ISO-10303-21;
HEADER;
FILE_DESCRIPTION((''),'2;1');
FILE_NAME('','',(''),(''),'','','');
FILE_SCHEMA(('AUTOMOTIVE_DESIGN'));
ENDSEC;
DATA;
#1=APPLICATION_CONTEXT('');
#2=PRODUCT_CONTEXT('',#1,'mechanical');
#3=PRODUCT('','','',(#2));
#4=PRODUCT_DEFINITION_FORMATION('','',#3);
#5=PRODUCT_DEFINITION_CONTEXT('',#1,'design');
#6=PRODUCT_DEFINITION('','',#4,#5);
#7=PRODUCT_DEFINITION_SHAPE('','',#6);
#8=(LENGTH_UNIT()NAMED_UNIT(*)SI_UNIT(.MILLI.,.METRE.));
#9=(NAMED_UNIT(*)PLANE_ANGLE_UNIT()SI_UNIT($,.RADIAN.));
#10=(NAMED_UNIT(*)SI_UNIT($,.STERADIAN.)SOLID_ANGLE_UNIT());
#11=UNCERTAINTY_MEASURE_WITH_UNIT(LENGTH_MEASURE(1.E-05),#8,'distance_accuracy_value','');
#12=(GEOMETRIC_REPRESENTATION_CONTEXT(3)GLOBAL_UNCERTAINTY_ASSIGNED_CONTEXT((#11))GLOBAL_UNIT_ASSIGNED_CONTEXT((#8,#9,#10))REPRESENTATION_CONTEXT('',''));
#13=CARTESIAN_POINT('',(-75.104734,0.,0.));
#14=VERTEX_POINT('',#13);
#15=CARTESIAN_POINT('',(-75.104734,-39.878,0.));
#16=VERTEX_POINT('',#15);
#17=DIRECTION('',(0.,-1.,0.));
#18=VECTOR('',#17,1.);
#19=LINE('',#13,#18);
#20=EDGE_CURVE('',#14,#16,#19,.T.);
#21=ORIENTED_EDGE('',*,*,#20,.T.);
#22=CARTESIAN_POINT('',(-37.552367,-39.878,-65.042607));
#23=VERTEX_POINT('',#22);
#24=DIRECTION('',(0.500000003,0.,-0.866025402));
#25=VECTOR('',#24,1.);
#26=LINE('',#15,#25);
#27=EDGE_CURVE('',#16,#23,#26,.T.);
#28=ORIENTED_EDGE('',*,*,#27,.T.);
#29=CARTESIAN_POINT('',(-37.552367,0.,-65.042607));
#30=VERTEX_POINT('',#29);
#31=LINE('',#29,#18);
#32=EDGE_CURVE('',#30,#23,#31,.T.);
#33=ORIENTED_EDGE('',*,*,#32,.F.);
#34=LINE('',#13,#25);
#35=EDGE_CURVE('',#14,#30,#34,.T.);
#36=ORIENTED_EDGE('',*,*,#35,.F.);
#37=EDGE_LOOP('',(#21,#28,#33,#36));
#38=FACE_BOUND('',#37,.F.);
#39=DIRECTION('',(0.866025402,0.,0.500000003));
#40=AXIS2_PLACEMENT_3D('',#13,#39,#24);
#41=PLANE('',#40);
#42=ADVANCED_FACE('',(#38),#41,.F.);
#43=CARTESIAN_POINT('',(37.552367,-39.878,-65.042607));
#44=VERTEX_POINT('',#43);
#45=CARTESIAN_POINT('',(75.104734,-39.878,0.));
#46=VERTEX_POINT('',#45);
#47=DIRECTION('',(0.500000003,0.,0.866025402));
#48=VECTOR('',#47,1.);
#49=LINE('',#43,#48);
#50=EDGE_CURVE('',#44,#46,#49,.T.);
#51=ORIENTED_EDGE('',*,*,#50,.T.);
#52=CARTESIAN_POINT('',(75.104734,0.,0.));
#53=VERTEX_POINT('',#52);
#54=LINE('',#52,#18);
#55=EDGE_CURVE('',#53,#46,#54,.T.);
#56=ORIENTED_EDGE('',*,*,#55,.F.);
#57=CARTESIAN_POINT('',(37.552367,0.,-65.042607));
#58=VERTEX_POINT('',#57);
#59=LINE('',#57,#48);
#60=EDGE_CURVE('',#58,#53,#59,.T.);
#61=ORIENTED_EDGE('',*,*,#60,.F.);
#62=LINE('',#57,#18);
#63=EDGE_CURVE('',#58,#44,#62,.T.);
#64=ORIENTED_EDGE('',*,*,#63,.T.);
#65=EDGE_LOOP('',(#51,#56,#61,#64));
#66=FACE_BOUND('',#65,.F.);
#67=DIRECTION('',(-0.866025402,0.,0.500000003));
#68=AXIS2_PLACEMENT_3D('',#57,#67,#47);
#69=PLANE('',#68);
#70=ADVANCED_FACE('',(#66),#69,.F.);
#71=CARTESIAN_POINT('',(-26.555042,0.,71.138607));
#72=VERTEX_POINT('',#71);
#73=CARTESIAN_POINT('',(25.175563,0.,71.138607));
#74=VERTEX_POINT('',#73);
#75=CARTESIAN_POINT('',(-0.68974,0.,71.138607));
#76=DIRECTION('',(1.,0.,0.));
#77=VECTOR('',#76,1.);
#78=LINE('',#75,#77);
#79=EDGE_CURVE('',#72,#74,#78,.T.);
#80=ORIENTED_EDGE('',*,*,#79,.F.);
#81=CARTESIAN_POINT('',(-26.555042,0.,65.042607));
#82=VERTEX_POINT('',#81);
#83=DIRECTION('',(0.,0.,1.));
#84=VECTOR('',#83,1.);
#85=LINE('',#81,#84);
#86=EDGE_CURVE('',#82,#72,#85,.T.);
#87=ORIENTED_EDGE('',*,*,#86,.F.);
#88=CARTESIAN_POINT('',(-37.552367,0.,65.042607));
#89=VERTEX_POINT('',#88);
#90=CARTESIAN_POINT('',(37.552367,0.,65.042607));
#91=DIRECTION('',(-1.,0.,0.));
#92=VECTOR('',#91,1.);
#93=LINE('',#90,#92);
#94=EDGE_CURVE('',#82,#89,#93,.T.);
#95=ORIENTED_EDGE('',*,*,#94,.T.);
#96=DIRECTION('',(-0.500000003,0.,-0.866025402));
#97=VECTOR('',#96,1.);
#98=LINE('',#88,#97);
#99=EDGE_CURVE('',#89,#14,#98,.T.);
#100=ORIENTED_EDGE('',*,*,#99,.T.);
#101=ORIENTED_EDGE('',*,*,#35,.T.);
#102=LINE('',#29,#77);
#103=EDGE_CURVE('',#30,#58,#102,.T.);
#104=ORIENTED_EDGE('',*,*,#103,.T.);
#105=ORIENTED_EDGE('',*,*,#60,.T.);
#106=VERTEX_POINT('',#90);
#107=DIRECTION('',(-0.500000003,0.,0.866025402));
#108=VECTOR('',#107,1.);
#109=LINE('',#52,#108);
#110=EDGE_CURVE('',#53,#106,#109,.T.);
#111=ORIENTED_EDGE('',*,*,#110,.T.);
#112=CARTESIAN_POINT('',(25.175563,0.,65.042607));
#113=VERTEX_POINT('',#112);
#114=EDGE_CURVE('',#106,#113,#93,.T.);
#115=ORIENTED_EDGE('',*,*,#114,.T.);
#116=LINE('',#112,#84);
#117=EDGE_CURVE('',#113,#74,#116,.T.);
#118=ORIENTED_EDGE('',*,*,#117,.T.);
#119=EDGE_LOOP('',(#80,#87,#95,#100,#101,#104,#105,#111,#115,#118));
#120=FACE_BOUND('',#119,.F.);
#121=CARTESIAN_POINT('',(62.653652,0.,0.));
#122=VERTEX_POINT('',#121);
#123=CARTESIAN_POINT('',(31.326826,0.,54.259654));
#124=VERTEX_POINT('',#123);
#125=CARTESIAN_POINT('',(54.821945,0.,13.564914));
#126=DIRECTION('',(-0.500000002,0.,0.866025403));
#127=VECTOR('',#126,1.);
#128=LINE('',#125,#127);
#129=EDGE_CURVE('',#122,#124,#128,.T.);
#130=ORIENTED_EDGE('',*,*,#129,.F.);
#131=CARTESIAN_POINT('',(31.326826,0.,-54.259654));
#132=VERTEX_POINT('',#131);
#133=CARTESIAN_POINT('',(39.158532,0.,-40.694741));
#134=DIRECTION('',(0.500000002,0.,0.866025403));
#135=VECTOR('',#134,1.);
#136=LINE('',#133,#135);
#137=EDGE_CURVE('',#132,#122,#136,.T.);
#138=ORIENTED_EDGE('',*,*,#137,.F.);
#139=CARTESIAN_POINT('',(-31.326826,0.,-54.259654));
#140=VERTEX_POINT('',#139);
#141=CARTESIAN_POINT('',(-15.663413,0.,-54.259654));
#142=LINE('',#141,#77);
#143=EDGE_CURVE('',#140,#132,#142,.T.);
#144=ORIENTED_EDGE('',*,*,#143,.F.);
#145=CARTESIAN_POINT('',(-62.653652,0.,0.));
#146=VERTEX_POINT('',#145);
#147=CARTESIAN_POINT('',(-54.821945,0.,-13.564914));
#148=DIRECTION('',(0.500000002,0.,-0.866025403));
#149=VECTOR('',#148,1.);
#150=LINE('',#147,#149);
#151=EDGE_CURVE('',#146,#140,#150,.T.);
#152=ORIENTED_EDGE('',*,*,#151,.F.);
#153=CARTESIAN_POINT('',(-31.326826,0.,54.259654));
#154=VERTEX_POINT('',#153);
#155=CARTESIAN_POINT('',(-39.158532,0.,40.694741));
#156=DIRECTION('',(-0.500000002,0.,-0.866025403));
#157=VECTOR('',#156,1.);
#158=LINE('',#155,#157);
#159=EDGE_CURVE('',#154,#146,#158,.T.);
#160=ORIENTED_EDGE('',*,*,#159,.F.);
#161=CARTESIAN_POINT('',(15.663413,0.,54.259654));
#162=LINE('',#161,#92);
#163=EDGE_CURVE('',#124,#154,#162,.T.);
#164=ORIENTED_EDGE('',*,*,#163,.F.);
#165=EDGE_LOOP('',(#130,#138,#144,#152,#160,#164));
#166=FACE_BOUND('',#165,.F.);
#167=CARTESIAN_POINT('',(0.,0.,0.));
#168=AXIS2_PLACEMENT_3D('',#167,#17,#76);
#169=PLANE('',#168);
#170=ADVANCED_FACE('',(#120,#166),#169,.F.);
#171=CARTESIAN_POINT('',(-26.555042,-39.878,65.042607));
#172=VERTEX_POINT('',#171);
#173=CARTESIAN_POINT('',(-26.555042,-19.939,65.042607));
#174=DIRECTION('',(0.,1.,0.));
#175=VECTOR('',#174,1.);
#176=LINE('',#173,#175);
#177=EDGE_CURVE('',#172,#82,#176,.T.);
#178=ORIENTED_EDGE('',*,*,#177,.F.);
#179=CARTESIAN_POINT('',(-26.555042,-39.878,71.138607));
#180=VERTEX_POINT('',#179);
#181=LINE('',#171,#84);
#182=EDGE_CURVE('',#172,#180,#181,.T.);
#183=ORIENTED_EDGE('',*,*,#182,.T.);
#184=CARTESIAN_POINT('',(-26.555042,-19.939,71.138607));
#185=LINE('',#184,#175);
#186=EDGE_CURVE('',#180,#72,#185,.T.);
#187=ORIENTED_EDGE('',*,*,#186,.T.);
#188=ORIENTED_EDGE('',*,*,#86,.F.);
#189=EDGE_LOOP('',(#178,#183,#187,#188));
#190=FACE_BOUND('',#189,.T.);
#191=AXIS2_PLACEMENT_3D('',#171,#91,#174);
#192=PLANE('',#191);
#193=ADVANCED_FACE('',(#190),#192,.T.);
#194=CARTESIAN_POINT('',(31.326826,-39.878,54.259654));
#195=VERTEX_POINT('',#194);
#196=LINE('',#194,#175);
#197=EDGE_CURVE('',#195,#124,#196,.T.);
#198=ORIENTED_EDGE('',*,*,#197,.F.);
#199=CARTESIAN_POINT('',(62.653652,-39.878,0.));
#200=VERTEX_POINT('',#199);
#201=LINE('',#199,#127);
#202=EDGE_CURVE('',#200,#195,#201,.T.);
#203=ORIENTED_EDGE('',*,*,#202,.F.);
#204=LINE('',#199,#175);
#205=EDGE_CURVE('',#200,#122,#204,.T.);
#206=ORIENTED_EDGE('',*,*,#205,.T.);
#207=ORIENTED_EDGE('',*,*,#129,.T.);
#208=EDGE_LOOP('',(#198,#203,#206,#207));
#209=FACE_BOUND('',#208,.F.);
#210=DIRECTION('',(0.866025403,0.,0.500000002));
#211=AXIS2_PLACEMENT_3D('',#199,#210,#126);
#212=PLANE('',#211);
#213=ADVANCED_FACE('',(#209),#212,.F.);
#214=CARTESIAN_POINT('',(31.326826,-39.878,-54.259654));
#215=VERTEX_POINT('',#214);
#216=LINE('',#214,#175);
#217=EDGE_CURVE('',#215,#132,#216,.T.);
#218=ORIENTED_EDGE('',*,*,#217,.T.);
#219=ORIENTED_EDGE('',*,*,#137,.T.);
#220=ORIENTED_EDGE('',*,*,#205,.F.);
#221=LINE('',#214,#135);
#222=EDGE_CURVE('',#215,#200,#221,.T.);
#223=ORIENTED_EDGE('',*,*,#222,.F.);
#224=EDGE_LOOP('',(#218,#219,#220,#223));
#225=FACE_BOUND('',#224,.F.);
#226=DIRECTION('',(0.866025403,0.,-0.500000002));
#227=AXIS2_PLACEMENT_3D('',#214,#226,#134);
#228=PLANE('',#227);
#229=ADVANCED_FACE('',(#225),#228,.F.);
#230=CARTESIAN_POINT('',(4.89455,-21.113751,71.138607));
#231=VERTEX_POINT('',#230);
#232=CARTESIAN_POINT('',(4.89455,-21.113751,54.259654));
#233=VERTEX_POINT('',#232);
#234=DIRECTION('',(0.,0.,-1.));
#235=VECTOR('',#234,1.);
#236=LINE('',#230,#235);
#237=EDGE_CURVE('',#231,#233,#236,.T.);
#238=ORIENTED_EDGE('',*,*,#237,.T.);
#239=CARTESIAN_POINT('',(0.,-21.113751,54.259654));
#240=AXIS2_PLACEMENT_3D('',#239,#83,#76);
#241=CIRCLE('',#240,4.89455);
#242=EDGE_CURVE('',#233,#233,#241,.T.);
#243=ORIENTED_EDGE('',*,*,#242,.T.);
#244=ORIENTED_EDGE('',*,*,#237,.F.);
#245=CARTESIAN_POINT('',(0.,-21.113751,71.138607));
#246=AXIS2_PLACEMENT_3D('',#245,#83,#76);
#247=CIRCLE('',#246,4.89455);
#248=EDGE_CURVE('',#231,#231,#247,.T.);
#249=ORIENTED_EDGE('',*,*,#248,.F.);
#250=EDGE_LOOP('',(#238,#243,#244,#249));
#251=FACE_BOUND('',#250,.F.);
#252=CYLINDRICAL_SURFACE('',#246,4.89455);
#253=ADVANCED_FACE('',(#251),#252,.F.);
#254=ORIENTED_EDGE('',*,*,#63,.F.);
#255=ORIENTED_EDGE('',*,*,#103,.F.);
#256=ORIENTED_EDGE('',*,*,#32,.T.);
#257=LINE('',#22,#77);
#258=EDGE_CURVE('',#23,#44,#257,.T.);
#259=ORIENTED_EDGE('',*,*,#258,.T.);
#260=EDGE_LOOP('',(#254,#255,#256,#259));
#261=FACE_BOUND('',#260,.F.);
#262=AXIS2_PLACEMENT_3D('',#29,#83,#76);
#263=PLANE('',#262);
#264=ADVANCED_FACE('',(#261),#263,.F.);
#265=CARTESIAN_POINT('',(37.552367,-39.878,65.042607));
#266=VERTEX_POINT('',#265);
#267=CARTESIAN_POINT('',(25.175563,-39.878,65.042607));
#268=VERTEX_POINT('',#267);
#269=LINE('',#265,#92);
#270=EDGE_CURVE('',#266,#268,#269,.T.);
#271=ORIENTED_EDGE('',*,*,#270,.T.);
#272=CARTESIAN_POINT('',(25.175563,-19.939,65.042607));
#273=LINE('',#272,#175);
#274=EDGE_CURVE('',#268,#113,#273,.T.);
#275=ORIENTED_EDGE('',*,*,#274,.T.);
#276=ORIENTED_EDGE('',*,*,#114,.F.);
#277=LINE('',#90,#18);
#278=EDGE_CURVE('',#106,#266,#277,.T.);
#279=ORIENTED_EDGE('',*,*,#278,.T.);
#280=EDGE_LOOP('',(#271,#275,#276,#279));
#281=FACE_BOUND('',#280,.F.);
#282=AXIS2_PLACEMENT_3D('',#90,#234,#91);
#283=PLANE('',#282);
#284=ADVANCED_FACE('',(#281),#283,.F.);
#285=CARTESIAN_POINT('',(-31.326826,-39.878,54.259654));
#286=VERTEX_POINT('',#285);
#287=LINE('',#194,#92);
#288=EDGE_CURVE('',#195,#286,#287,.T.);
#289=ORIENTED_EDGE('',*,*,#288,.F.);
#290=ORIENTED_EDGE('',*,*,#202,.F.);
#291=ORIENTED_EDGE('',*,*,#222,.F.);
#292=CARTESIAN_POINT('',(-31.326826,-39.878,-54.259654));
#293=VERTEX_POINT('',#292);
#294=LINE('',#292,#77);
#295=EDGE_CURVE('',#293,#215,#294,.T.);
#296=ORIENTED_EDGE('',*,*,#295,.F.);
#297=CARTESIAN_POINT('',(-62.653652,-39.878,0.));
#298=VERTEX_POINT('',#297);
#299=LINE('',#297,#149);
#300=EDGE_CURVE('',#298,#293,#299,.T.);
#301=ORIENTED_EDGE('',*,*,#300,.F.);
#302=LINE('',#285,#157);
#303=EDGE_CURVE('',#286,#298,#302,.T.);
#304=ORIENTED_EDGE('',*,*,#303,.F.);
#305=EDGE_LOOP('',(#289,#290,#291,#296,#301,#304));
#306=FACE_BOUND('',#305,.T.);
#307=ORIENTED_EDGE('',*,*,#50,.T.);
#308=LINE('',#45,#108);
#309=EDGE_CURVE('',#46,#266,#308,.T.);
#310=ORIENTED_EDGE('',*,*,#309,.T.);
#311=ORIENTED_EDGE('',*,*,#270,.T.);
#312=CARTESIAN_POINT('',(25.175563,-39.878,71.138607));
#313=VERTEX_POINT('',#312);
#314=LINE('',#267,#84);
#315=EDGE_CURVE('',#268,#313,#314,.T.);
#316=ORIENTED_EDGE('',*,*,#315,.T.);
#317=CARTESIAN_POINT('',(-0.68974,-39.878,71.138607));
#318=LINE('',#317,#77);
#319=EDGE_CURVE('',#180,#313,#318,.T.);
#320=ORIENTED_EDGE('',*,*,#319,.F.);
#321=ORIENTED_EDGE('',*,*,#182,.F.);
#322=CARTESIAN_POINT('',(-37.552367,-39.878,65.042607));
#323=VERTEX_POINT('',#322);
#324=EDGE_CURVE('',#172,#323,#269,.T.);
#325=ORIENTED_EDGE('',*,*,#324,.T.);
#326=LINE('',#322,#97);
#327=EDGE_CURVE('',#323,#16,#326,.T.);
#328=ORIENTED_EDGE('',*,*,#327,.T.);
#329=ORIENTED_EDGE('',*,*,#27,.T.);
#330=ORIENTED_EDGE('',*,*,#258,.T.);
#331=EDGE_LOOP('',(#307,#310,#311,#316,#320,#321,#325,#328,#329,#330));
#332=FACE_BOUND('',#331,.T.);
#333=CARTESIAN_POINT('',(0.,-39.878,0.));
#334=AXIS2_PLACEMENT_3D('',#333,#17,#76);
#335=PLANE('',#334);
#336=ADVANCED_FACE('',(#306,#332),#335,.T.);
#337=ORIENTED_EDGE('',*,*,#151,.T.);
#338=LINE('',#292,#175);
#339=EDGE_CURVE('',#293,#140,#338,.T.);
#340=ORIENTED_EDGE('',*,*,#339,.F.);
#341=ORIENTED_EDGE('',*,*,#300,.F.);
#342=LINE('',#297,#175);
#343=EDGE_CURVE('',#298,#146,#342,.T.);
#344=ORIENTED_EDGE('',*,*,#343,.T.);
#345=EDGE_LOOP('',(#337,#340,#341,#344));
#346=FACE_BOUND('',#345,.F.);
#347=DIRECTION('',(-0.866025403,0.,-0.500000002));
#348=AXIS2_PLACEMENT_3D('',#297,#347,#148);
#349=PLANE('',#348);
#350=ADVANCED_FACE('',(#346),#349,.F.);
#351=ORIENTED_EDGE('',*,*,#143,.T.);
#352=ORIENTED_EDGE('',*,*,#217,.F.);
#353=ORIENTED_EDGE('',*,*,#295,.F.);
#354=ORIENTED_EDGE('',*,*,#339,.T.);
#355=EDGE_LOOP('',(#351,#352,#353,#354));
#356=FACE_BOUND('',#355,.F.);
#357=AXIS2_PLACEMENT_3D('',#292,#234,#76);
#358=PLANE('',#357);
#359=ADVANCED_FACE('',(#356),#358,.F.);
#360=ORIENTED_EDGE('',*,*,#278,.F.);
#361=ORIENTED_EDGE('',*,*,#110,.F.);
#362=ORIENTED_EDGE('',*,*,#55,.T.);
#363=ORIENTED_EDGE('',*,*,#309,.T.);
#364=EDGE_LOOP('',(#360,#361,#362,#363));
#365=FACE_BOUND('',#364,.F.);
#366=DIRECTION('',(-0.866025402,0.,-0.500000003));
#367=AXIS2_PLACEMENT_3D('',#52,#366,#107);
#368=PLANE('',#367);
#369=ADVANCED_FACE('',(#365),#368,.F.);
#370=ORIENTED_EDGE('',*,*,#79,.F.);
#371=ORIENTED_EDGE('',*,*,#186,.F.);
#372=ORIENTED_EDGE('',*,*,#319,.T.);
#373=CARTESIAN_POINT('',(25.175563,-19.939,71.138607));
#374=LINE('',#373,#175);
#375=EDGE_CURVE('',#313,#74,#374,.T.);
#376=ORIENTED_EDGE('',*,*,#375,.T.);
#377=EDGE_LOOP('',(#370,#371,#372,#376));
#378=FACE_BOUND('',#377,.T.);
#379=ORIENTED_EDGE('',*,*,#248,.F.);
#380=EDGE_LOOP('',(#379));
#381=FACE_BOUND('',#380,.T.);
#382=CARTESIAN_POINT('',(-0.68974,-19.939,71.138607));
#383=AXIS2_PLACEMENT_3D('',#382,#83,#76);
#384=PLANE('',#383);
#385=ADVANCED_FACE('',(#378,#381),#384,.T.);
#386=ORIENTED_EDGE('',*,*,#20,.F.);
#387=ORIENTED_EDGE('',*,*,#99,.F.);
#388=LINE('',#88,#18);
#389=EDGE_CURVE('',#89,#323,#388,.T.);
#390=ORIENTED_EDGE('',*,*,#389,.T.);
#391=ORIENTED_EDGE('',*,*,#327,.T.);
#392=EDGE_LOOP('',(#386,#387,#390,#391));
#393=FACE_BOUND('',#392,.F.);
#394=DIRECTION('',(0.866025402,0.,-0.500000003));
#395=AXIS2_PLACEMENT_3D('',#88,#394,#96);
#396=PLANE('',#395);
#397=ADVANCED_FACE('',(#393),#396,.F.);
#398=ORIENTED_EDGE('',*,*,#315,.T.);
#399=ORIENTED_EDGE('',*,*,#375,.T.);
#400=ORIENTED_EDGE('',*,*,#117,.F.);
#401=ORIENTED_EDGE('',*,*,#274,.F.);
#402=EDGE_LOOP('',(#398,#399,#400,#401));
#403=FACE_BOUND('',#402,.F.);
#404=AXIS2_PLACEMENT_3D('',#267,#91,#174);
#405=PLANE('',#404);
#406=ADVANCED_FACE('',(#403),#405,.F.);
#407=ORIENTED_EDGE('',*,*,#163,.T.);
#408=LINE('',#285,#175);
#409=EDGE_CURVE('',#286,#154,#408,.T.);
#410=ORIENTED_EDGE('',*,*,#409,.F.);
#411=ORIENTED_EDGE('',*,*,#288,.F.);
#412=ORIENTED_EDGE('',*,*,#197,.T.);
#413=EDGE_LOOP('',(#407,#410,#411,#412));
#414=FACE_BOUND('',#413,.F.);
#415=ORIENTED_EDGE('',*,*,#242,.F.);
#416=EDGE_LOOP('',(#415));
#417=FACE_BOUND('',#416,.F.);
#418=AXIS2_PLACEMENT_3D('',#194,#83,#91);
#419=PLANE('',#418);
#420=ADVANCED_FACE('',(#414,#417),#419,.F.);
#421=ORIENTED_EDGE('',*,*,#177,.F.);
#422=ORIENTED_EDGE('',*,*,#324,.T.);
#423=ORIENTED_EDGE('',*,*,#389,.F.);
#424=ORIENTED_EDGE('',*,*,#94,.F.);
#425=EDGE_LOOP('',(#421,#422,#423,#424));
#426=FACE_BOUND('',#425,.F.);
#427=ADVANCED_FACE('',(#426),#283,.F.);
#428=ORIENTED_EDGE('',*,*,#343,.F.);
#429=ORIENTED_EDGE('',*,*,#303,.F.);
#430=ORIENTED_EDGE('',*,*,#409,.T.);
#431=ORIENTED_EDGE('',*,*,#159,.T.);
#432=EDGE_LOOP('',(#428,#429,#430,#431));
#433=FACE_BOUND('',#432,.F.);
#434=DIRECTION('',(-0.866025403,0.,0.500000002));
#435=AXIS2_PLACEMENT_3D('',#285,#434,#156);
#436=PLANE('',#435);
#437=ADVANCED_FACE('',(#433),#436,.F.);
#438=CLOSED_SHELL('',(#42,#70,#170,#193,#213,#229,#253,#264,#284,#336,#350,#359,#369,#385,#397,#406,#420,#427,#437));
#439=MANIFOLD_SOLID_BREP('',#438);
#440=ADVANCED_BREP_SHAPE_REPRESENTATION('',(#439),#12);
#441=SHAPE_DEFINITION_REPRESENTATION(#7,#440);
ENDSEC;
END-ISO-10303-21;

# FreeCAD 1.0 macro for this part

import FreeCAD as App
import Part
import Sketcher

V = App.Vector
Q = App.Units.Quantity


def add_polygon(sketch, points):
    """Adds a closed chain of lines whose ends are joined by coincident constraints."""
    first, n = sketch.GeometryCount, len(points)
    for a, b in zip(points, points[1:] + points[:1]):
        sketch.addGeometry(Part.LineSegment(App.Vector(*a, 0), App.Vector(*b, 0)), False)
    for i in range(n):
        sketch.addConstraint(Sketcher.Constraint("Coincident", first + i, 2, first + (i + 1) % n, 1))

doc = App.newDocument("Part")
body = doc.addObject("PartDesign::Body", "Body")

sketch1 = body.newObject("Sketcher::SketchObject", "Sketch")
sketch1.AttachmentSupport = (doc.getObject("XZ_Plane"), [""])
sketch1.MapMode = "FlatFace"
add_polygon(sketch1, [(38, 65), (-38, 65), (-75, 0), (-38, -65), (38, -65), (75, 0)])
sketch1.addConstraint([
    Sketcher.Constraint("Horizontal", 0),
    Sketcher.Constraint("Horizontal", 3),
    Sketcher.Constraint("Symmetric", 0, 2, 3, 2, -1, 1),
    Sketcher.Constraint("Symmetric", 1, 2, 4, 2, -1, 1),
    Sketcher.Constraint("PointOnObject", 1, 2, -1),
    Sketcher.Constraint("Parallel", 2, 5),
    Sketcher.Constraint("Vertical", 0, 2, 2, 2),
    Sketcher.Constraint("Angle", 1, Q("-120 deg")),
    Sketcher.Constraint("DistanceX", 1, 2, 3, 2, 112.657101),
    Sketcher.Constraint("DistanceX", 0, 2, 0, 1, 75.104734),
])
pad1 = body.newObject("PartDesign::Pad", "Pad")
pad1.Profile = sketch1
pad1.Length = Q("1.57 in")

sketch2 = body.newObject("Sketcher::SketchObject", "Sketch001")
sketch2.AttachmentSupport = (doc.getObject("XZ_Plane"), [""])
sketch2.MapMode = "FlatFace"
sketch2.AttachmentOffset = App.Placement(V(0, 0, 1.57 * 25.4), App.Rotation())
add_polygon(sketch2, [(31, 54), (-31, 54), (-63, 0), (-31, -54), (31, -54), (63, 0)])
sketch2.addConstraint([
    Sketcher.Constraint("Horizontal", 0),
    Sketcher.Constraint("Horizontal", 3),
    Sketcher.Constraint("Symmetric", 0, 2, 3, 2, -1, 1),
    Sketcher.Constraint("Symmetric", 1, 2, 4, 2, -1, 1),
    Sketcher.Constraint("PointOnObject", 1, 2, -1),
    Sketcher.Constraint("Parallel", 2, 5),
    Sketcher.Constraint("Vertical", 0, 2, 2, 2),
    Sketcher.Constraint("Angle", 1, Q("-120 deg")),
    Sketcher.Constraint("Distance", 1, 62.653652),
    Sketcher.Constraint("DistanceX", 0, 2, 0, 1, 62.653652),
])
pocket1 = body.newObject("PartDesign::Pocket", "Pocket")
pocket1.Profile = sketch2
pocket1.Length = Q("2.3 in")

sketch3 = body.newObject("Sketcher::SketchObject", "Sketch002")
sketch3.AttachmentSupport = (doc.getObject("XY_Plane"), [""])
sketch3.MapMode = "FlatFace"
sketch3.AttachmentOffset = App.Placement(V(0, 0, 65.042607), App.Rotation())
add_polygon(sketch3, [(-27, 0), (-27, -40), (25, -40), (25, 0)])
sketch3.addConstraint([
    Sketcher.Constraint("Vertical", 0),
    Sketcher.Constraint("Horizontal", 1),
    Sketcher.Constraint("Vertical", 2),
    Sketcher.Constraint("Horizontal", 3),
    Sketcher.Constraint("PointOnObject", 2, 2, -1),
    Sketcher.Constraint("DistanceY", 0, 2, 0, 1, Q("1.57 in")),
    Sketcher.Constraint("DistanceX", 1, 1, 1, 2, 51.730605),
    Sketcher.Constraint("DistanceX", 0, 2, -1, 1, 26.555042),
])
pad2 = body.newObject("PartDesign::Pad", "Pad001")
pad2.Profile = sketch3
pad2.Length = Q("0.24 in")

sketch4 = body.newObject("Sketcher::SketchObject", "Sketch003")
sketch4.AttachmentSupport = (doc.getObject("XY_Plane"), [""])
sketch4.MapMode = "FlatFace"
sketch4.AttachmentOffset = App.Placement(V(0, 0, 71.138607), App.Rotation())
sketch4.addGeometry(Part.Circle(V(0, -21.1, 0), V(0, 0, 1), 4.9), False)
sketch4.addConstraint([
    Sketcher.Constraint("PointOnObject", 0, 3, -2),
    Sketcher.Constraint("Diameter", 0, 9.7891),
    Sketcher.Constraint("DistanceY", 0, 3, -1, 1, 21.113751),
])
pocket2 = body.newObject("PartDesign::Pocket", "Pocket001")
pocket2.Profile = sketch4
pocket2.Length = Q("1 in")

doc.recompute()
